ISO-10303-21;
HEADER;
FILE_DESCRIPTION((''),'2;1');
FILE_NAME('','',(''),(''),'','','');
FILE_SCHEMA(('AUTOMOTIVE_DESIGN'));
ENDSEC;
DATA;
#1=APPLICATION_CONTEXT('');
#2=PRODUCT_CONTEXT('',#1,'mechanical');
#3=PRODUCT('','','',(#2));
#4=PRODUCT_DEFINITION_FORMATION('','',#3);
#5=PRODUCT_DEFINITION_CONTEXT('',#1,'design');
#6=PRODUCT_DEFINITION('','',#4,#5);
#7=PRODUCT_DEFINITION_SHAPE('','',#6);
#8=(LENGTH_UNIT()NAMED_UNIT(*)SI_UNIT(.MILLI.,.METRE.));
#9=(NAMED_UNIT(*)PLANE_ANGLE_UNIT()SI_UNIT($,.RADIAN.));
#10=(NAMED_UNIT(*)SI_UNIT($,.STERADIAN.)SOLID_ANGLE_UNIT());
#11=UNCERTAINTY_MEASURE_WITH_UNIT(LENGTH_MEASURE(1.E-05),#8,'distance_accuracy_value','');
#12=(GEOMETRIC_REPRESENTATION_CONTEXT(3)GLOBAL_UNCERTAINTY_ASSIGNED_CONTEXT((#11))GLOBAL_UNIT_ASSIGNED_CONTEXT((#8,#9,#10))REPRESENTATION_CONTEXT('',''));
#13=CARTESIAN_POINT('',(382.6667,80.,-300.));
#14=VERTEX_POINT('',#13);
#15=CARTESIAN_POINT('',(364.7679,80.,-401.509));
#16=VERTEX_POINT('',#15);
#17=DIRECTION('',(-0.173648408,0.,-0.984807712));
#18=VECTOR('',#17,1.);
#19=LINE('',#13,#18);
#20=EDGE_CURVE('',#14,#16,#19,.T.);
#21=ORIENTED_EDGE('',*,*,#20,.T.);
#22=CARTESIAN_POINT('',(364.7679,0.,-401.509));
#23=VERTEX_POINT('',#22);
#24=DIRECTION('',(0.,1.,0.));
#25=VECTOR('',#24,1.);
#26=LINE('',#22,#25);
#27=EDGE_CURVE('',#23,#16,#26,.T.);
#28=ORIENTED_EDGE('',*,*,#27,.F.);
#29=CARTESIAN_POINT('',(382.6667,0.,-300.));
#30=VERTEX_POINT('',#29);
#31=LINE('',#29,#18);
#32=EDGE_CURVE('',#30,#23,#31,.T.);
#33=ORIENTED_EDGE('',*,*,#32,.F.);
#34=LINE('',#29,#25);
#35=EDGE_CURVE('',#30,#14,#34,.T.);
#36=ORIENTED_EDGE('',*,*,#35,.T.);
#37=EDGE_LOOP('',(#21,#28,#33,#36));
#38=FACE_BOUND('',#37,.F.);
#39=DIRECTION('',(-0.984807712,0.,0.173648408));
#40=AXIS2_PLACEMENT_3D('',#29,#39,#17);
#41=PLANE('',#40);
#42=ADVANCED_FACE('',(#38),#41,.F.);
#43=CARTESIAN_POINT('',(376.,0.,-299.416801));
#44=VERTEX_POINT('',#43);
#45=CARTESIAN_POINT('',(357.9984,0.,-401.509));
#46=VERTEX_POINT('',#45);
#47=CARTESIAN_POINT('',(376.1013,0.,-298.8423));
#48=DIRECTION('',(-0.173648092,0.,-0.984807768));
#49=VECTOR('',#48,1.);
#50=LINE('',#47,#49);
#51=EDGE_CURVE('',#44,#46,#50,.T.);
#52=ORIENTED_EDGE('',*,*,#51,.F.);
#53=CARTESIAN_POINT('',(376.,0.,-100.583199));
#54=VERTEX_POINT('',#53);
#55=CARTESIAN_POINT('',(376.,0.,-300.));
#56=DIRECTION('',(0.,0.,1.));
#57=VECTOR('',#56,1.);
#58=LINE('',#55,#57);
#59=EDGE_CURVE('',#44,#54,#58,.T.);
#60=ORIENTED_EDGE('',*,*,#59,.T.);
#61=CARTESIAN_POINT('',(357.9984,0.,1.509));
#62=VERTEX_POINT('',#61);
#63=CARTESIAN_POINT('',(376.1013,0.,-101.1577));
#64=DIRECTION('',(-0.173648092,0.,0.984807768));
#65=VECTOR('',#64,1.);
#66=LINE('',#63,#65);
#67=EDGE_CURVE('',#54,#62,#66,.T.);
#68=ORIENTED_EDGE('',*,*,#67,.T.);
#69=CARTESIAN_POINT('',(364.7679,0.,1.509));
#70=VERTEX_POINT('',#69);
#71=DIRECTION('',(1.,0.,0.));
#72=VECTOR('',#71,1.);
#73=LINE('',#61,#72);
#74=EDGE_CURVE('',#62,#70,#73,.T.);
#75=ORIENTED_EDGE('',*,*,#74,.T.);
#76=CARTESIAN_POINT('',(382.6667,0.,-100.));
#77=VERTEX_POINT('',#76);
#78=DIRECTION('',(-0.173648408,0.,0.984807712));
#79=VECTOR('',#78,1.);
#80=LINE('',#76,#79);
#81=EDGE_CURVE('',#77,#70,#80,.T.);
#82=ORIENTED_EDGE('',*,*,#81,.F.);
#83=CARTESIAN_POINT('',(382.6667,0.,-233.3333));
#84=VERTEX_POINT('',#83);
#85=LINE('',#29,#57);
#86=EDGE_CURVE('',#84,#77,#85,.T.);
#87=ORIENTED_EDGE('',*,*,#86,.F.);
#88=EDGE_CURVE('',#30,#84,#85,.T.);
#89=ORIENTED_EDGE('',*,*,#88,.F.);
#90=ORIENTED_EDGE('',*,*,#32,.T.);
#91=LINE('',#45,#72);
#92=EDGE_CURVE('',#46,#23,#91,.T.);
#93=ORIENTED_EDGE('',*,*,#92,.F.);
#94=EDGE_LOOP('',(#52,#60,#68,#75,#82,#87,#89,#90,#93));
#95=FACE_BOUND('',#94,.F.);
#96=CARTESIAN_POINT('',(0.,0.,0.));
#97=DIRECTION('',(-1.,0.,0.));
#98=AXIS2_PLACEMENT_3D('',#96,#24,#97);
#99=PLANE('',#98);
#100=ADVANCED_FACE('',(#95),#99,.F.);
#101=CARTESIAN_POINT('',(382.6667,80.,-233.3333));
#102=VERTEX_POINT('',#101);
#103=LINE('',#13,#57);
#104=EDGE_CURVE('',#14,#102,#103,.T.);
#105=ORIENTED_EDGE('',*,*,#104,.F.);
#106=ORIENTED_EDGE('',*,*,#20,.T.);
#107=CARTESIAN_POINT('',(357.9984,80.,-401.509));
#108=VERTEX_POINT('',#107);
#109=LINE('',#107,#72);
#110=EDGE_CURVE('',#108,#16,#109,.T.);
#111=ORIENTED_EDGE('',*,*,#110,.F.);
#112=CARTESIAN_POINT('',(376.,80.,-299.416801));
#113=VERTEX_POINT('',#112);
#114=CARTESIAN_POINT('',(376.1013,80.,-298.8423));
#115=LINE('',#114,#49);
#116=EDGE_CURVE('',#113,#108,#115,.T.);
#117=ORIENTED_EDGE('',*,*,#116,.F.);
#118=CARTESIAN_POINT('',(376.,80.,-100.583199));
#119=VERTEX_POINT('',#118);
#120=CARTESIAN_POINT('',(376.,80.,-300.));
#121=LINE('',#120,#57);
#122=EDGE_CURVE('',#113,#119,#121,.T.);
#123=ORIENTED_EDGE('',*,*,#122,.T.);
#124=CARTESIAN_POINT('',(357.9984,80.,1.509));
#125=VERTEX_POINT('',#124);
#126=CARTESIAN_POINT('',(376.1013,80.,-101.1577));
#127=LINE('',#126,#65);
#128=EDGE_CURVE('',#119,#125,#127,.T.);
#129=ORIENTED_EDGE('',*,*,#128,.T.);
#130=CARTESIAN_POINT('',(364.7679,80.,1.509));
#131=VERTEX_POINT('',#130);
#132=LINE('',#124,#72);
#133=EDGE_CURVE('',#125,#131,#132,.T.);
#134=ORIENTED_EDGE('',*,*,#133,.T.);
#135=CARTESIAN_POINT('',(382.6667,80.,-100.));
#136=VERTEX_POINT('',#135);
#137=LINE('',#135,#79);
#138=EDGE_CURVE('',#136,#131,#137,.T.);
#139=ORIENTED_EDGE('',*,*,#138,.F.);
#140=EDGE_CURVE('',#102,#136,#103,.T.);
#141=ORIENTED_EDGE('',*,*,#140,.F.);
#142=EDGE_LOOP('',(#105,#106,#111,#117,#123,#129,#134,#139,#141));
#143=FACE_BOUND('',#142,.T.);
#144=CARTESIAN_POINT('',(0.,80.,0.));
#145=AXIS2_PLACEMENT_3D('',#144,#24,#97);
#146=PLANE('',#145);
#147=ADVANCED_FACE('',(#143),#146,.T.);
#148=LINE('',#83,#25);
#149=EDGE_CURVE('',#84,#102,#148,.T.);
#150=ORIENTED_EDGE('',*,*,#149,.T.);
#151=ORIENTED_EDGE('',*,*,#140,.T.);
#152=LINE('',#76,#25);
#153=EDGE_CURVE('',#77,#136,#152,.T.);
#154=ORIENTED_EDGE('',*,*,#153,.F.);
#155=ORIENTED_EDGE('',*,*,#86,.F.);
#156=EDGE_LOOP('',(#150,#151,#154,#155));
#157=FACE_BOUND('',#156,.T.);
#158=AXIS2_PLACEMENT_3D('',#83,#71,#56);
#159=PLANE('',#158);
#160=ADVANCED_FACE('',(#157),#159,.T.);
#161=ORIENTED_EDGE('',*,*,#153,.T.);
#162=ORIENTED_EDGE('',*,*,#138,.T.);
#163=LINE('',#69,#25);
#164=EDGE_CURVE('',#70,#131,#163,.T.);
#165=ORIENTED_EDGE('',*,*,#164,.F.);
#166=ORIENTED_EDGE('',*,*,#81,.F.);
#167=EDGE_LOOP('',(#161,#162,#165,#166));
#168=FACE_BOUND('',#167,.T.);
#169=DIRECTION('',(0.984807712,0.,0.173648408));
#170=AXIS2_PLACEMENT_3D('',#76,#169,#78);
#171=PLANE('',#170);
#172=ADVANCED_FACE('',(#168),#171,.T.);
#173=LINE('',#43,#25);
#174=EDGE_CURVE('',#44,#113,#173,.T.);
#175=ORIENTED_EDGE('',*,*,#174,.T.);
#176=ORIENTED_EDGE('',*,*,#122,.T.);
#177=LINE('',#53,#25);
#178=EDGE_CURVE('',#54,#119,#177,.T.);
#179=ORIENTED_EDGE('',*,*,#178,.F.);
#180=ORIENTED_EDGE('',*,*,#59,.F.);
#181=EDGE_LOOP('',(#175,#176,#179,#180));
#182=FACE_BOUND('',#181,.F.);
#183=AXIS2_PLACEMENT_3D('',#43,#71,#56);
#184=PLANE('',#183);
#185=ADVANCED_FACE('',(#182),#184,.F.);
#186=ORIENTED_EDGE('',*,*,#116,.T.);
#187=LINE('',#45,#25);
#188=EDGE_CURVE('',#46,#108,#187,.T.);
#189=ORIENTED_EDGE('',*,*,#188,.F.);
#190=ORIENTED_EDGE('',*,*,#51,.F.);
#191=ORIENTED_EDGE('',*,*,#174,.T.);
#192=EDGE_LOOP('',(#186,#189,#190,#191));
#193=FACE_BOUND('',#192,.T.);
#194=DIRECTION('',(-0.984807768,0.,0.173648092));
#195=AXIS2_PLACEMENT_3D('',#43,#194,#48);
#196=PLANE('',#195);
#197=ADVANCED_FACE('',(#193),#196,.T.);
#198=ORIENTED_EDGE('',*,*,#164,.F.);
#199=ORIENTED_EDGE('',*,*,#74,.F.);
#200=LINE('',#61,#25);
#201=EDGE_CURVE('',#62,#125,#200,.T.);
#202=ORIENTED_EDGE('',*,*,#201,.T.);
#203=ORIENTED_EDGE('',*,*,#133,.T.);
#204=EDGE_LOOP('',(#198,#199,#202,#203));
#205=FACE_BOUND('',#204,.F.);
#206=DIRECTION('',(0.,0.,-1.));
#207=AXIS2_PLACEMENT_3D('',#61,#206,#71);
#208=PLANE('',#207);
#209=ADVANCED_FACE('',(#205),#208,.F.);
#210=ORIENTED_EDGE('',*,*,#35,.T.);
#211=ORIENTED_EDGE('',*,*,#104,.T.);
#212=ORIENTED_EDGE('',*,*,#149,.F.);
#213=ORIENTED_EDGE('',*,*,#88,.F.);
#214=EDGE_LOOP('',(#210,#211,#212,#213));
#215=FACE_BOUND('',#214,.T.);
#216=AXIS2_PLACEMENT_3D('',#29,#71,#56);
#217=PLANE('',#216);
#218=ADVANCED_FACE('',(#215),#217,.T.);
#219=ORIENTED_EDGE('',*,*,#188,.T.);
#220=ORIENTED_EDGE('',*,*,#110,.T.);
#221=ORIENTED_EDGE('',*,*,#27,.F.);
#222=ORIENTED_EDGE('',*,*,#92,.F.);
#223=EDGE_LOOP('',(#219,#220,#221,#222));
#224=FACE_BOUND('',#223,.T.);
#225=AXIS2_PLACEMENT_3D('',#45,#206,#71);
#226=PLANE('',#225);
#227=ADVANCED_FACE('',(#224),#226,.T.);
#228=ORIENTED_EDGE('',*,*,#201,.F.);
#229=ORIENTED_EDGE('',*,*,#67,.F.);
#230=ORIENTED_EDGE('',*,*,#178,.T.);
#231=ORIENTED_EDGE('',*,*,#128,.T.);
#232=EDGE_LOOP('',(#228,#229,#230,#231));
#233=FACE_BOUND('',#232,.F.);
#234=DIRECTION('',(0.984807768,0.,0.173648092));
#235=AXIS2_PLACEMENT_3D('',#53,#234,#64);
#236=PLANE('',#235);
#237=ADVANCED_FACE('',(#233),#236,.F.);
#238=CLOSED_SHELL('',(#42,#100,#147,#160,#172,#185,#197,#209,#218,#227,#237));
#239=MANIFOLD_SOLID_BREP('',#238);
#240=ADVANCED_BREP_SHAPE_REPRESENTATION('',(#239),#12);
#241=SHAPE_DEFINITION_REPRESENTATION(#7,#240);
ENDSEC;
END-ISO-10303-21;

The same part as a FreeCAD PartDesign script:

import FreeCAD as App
import Part
import Sketcher

V = App.Vector
Q = App.Units.Quantity


def add_polygon(sketch, points):
    """Adds a closed chain of lines whose ends are joined by coincident constraints."""
    first, n = sketch.GeometryCount, len(points)
    for a, b in zip(points, points[1:] + points[:1]):
        sketch.addGeometry(Part.LineSegment(App.Vector(*a, 0), App.Vector(*b, 0)), False)
    for i in range(n):
        sketch.addConstraint(Sketcher.Constraint("Coincident", first + i, 2, first + (i + 1) % n, 1))

doc = App.newDocument("Part")
body = doc.addObject("PartDesign::Body", "Body")

# Sketch on XZ plane
sketch1 = body.newObject("Sketcher::SketchObject", "Sketch")
sketch1.AttachmentSupport = (doc.getObject("XZ_Plane"), [""])
sketch1.MapMode = "FlatFace"
add_polygon(sketch1, [(382.6667, -100), (382.6667, -300), (364.7679, -401.509), (357.9984, -401.509), (376, -299.416801), (376, -100.583199), (357.9984, 1.509), (364.7679, 1.509)])  # lines 0-7
sketch1.addConstraint([
    Sketcher.Constraint("Vertical", 0),
    Sketcher.Constraint("Horizontal", 2),
    Sketcher.Constraint("Vertical", 4),
    Sketcher.Constraint("Horizontal", 6),
    Sketcher.Constraint("Parallel", 1, 3),
    Sketcher.Constraint("Parallel", 5, 7),
    Sketcher.Constraint("Vertical", 2, 2, 5, 2),
    Sketcher.Constraint("Vertical", 1, 2, 6, 2),
    Sketcher.Constraint("Equal", 3, 5),
    Sketcher.Constraint("DistanceY", 0, 2, 0, 1, 200.0),
    Sketcher.Constraint("Angle", 1, Q("-100 deg")),
    Sketcher.Constraint("DistanceY", 0, 2, -1, 1, 300.0),
    Sketcher.Constraint("DistanceX", -1, 1, 3, 2, 376.0),
    Sketcher.Constraint("Distance", 1, 103.075),
    Sketcher.Constraint("DistanceX", 2, 2, 2, 1, 6.7695),
    Sketcher.Constraint("DistanceY", 4, 1, 4, 2, 198.8336),
])
pad1 = body.newObject("PartDesign::Pad", "Pad")
pad1.Profile = sketch1
pad1.Length = 80
pad1.Reversed = True

doc.recompute()
